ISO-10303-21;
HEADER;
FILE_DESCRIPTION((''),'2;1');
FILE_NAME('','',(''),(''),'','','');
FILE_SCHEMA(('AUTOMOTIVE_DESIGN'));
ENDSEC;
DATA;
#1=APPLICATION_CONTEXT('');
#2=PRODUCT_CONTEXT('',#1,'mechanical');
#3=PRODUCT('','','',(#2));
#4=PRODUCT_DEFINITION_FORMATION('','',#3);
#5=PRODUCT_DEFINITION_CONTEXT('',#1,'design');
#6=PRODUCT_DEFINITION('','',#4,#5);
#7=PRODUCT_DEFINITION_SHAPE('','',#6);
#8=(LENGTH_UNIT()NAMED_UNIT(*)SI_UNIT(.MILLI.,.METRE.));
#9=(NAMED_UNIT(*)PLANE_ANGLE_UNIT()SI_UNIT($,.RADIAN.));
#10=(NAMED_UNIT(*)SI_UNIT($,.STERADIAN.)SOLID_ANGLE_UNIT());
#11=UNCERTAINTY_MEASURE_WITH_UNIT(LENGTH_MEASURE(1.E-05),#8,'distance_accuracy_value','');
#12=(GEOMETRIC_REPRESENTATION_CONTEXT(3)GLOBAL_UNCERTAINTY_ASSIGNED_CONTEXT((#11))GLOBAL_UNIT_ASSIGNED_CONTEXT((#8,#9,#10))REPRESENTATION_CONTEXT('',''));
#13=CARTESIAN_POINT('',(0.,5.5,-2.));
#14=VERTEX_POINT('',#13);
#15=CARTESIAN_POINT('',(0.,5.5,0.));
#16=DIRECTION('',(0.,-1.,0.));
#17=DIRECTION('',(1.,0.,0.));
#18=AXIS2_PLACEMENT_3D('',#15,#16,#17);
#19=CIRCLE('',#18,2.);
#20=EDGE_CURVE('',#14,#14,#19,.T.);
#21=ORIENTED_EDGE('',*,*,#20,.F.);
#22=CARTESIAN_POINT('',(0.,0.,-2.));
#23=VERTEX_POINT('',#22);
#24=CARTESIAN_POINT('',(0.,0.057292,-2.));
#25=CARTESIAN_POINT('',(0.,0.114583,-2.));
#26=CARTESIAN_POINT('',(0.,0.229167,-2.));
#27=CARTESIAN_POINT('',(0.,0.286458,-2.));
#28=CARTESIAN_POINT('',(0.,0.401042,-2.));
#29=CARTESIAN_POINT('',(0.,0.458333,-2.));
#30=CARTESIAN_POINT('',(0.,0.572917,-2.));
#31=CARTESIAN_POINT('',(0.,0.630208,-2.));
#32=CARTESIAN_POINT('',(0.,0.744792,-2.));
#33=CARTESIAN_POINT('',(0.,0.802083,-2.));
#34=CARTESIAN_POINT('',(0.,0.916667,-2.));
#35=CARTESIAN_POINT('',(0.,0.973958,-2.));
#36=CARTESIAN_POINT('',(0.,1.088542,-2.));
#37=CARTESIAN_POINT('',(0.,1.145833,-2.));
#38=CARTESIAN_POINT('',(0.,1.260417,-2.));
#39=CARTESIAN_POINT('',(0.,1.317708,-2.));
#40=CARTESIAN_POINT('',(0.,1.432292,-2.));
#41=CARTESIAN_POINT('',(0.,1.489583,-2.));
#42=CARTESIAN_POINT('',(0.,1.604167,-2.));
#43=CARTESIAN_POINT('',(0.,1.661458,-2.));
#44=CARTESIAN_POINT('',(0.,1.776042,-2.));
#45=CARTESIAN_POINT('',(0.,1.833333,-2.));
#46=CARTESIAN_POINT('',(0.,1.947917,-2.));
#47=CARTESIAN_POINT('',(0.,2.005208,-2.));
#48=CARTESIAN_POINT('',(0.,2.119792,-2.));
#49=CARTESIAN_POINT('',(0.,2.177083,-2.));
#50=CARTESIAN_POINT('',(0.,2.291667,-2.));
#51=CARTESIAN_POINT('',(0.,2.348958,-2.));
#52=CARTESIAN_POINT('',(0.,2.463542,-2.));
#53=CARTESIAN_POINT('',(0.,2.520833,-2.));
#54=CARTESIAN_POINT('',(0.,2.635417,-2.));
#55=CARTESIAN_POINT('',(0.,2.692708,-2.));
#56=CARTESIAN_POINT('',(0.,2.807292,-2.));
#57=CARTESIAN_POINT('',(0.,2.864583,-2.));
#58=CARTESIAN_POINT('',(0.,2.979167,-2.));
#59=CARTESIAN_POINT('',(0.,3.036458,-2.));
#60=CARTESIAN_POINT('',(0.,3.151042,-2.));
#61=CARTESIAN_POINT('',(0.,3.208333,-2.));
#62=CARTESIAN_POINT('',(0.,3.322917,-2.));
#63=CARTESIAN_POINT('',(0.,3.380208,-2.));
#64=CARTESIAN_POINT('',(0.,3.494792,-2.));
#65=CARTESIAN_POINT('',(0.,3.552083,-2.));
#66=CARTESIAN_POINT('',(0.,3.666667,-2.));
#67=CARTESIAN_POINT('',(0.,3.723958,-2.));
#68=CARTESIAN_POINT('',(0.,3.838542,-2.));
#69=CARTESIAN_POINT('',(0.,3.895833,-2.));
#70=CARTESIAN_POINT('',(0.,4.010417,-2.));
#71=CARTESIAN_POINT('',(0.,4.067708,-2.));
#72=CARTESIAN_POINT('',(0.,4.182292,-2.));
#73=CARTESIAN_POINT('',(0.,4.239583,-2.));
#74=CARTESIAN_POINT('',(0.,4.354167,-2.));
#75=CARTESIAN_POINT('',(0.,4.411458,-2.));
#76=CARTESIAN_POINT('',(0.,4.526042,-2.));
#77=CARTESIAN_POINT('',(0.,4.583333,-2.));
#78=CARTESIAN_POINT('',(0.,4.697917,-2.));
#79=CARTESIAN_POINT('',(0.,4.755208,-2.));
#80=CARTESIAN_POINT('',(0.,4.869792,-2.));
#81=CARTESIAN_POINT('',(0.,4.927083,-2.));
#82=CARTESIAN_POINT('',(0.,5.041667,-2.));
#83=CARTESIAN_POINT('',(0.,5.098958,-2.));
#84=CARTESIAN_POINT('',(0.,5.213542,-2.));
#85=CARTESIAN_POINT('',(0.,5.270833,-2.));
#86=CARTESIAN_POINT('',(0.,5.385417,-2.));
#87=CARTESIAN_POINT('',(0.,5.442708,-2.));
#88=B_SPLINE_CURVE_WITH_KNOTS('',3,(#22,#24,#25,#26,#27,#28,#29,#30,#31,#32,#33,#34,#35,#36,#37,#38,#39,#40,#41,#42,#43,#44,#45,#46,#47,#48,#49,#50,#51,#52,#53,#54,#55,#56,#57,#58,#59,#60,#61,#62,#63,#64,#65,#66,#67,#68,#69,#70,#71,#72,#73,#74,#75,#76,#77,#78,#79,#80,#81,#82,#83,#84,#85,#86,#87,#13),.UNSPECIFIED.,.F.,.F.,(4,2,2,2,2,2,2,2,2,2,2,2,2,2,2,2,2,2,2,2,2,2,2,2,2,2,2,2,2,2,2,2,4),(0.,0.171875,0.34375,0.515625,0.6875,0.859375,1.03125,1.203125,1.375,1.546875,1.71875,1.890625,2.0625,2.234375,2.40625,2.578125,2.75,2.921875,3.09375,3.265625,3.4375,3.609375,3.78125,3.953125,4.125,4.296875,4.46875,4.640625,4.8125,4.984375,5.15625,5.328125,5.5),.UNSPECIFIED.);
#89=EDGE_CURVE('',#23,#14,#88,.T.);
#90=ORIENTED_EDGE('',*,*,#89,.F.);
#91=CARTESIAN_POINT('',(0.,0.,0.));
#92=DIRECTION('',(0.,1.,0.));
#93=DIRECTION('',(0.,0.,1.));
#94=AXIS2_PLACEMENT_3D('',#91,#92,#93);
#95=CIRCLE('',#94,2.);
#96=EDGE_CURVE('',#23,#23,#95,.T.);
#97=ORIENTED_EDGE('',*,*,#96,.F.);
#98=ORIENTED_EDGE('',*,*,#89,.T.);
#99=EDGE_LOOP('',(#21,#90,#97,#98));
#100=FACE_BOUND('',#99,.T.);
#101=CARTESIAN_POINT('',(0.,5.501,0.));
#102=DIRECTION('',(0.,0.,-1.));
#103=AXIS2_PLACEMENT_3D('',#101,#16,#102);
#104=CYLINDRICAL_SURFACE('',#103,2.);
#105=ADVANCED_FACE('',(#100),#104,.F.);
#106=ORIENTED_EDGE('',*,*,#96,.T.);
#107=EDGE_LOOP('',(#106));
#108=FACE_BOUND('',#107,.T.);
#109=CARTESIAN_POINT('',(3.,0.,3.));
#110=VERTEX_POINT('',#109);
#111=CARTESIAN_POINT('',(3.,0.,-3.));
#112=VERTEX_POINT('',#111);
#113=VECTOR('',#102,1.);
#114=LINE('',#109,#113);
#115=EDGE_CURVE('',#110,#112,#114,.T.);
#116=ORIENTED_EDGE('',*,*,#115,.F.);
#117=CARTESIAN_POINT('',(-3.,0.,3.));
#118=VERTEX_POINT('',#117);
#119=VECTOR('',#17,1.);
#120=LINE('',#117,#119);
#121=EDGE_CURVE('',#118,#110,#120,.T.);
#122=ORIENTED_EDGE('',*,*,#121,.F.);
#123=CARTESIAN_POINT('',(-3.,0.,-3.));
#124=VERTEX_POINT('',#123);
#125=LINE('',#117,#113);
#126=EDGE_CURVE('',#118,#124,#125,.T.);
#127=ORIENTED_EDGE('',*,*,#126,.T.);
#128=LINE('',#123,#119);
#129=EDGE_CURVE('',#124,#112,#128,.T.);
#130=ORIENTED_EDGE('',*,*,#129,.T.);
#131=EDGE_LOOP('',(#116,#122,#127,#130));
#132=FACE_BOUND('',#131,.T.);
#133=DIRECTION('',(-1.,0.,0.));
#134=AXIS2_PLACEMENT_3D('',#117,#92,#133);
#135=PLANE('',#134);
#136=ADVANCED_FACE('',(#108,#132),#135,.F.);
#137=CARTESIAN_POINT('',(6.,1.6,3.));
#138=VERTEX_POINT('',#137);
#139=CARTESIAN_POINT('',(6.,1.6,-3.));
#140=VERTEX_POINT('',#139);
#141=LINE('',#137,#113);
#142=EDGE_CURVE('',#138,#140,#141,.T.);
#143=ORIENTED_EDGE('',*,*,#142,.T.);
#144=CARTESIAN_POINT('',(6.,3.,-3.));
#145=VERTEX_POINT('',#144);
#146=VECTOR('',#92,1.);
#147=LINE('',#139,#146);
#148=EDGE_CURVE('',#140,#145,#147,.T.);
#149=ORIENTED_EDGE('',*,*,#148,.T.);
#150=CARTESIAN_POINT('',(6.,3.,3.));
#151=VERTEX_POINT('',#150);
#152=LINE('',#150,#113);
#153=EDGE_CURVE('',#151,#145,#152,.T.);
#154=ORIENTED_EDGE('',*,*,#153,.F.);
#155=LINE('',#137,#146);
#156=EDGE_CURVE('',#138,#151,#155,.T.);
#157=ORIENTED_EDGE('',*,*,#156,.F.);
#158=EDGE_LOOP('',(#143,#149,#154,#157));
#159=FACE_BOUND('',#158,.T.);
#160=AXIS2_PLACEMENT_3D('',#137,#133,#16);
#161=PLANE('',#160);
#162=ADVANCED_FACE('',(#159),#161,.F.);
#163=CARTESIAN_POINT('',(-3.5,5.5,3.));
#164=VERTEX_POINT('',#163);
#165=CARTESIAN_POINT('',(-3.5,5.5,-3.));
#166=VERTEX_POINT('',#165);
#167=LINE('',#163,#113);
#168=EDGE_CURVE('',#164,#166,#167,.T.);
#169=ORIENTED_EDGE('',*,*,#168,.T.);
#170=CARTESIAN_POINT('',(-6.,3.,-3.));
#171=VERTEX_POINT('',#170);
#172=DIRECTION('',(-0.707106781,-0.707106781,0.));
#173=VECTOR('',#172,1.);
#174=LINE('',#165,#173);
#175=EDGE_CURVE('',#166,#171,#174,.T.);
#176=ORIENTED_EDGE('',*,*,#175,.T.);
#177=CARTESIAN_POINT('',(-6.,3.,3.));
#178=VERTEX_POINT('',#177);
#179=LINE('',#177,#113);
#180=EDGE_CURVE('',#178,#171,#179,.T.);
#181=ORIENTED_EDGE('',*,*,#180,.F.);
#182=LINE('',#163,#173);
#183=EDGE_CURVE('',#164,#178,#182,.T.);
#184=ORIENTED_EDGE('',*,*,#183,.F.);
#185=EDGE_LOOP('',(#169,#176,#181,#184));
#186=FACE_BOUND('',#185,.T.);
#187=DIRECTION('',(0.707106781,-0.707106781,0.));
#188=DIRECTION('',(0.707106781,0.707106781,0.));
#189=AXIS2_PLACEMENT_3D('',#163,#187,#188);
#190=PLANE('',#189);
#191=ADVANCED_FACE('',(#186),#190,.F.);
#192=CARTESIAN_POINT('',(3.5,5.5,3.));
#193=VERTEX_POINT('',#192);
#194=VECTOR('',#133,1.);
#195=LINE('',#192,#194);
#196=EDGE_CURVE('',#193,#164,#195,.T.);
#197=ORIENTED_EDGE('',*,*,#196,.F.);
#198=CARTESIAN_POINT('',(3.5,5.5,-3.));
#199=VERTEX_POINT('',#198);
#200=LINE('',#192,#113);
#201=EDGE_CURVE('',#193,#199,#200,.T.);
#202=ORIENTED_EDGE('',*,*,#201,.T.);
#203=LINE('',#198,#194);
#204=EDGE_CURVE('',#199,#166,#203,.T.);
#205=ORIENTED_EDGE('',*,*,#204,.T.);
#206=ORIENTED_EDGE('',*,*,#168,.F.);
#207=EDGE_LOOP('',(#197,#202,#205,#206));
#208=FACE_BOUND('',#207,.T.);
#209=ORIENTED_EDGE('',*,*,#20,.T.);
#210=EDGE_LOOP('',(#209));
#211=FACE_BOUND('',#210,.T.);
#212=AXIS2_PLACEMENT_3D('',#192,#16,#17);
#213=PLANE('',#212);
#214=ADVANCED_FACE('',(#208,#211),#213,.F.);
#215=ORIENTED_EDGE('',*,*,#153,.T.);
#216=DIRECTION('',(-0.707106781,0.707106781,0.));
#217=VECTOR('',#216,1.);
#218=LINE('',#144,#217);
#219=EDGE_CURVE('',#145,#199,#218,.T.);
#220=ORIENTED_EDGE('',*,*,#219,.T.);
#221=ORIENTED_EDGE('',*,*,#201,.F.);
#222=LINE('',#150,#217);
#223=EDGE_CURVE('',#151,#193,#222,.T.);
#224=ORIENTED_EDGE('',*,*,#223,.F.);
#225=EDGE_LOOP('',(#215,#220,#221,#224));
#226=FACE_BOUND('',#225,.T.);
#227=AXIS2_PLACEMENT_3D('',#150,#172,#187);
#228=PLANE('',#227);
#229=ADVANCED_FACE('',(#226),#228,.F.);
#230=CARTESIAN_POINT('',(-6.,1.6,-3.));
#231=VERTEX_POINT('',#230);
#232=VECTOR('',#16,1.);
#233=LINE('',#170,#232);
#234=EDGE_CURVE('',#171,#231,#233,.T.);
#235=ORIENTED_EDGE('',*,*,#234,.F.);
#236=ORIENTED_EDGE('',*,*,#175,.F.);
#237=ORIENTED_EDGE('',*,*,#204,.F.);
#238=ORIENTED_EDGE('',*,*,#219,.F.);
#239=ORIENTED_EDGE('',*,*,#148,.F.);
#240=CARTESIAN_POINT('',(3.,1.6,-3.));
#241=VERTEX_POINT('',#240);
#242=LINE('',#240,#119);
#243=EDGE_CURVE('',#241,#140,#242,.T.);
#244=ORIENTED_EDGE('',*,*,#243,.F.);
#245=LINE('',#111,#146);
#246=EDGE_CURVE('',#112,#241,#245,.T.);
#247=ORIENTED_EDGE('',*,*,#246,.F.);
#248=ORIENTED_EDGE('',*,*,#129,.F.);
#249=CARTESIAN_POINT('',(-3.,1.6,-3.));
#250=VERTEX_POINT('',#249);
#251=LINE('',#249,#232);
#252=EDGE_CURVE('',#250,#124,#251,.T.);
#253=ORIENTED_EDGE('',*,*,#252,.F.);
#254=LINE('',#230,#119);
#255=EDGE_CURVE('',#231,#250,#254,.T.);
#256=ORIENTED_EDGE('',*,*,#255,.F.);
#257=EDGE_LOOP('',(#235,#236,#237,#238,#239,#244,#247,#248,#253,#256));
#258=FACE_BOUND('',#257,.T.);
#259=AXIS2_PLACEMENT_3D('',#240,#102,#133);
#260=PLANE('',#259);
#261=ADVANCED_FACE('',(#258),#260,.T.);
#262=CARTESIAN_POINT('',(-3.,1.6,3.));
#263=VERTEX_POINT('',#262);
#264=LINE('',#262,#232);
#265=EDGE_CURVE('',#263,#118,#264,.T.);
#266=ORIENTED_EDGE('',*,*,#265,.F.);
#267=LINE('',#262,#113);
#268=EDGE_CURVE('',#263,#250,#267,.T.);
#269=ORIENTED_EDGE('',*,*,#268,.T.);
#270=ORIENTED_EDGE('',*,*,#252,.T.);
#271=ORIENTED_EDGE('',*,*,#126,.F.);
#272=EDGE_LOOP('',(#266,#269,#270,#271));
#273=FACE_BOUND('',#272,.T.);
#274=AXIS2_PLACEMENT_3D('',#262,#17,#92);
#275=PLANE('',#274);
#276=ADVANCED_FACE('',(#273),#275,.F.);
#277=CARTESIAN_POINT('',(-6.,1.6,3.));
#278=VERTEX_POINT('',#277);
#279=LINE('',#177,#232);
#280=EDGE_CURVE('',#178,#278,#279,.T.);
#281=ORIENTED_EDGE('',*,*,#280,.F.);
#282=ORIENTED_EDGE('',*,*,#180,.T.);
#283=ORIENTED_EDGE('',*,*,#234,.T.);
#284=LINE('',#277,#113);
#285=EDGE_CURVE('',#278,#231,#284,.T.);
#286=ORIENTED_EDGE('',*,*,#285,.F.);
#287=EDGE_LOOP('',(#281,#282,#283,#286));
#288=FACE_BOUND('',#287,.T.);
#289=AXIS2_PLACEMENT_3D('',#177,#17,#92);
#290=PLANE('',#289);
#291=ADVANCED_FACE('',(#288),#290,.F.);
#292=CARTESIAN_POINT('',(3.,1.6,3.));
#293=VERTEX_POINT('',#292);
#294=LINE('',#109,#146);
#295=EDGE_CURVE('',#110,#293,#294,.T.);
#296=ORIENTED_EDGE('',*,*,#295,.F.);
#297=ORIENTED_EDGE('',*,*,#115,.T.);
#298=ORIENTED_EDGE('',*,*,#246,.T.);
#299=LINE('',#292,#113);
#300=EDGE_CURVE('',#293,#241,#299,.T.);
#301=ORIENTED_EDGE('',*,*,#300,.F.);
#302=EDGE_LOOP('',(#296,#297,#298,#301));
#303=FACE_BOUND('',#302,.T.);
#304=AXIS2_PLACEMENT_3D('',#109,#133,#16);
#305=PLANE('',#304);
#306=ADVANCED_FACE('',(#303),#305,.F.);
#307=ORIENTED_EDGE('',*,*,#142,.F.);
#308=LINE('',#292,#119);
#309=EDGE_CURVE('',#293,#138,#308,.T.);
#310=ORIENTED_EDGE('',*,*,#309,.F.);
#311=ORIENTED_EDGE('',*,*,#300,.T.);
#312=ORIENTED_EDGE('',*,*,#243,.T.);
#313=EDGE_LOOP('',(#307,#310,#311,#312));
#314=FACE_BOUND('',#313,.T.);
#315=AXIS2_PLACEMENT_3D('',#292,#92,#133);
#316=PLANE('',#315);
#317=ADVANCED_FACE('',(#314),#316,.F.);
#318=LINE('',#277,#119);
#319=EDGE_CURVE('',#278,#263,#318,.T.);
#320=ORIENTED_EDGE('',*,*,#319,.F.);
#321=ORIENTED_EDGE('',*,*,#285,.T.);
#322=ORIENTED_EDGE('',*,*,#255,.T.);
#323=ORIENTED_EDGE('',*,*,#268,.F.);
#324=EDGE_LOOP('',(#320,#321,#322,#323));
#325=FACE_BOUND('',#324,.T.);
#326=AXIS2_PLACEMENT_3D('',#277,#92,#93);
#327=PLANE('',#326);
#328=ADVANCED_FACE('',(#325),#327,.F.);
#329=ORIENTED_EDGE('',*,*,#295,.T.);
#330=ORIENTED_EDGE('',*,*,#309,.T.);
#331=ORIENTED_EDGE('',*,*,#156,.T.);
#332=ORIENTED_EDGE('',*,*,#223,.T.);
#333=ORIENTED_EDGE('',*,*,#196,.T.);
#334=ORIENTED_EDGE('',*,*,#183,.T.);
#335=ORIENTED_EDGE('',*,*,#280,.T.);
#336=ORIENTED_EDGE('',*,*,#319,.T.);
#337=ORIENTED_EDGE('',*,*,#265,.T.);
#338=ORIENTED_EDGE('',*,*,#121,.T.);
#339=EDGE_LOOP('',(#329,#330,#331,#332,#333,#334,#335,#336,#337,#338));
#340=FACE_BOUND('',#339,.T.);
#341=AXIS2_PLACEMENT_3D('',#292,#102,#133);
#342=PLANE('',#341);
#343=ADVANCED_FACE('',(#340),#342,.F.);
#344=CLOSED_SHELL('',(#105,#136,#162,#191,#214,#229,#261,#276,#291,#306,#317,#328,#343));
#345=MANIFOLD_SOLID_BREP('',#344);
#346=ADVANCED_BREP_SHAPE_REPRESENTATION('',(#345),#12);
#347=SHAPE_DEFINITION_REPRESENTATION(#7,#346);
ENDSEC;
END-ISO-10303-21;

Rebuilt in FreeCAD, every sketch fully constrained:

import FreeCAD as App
import Part
import Sketcher

V = App.Vector
Q = App.Units.Quantity

doc = App.newDocument("Part")
body = doc.addObject("PartDesign::Body", "Body")

# Sketch on XY plane
sketch1 = body.newObject("Sketcher::SketchObject", "Sketch")
sketch1.AttachmentSupport = (doc.getObject("XY_Plane"), [""])
sketch1.MapMode = "FlatFace"
sketch1.addGeometry([
    Part.LineSegment(V(-3, 0, 0), V(3, 0, 0)),  # 0
    Part.LineSegment(V(3, 0, 0), V(3, 1.6, 0)),  # 1
    Part.LineSegment(V(3, 1.6, 0), V(6, 1.6, 0)),  # 2
    Part.LineSegment(V(6, 1.6, 0), V(6, 3, 0)),  # 3
    Part.LineSegment(V(6, 3, 0), V(3.5, 5.5, 0)),  # 4
    Part.LineSegment(V(3.5, 5.5, 0), V(-3.5, 5.5, 0)),  # 5
    Part.LineSegment(V(-3.5, 5.5, 0), V(-6, 3, 0)),  # 6
    Part.LineSegment(V(-6, 3, 0), V(-6, 1.6, 0)),  # 7
    Part.LineSegment(V(-6, 1.6, 0), V(-3, 1.6, 0)),  # 8
    Part.LineSegment(V(-3, 1.6, 0), V(-3, 0, 0)),  # 9
], False)
sketch1.addConstraint([
    Sketcher.Constraint("Coincident", 0, 2, 1, 1),
    Sketcher.Constraint("Coincident", 1, 2, 2, 1),
    Sketcher.Constraint("Coincident", 2, 2, 3, 1),
    Sketcher.Constraint("Coincident", 3, 2, 4, 1),
    Sketcher.Constraint("Coincident", 4, 2, 5, 1),
    Sketcher.Constraint("Coincident", 5, 2, 6, 1),
    Sketcher.Constraint("Coincident", 6, 2, 7, 1),
    Sketcher.Constraint("Coincident", 7, 2, 8, 1),
    Sketcher.Constraint("Coincident", 8, 2, 9, 1),
    Sketcher.Constraint("Coincident", 9, 2, 0, 1),
    Sketcher.Constraint("Horizontal", 0),
    Sketcher.Constraint("Vertical", 1),
    Sketcher.Constraint("Horizontal", 2),
    Sketcher.Constraint("Vertical", 3),
    Sketcher.Constraint("Horizontal", 5),
    Sketcher.Constraint("Vertical", 7),
    Sketcher.Constraint("Horizontal", 8),
    Sketcher.Constraint("Vertical", 9),
    Sketcher.Constraint("Symmetric", 0, 2, 9, 2, -1, 1),
    Sketcher.Constraint("Symmetric", 3, 2, 6, 2, -2),
    Sketcher.Constraint("Perpendicular", 4, 6),
    Sketcher.Constraint("Horizontal", 2, 2, 7, 2),
    Sketcher.Constraint("Equal", 4, 6),
    Sketcher.Constraint("DistanceX", 0, 1, 0, 2, Q("6 mm")),
    Sketcher.Constraint("DistanceX", 2, 1, 2, 2, Q("3 mm")),
    Sketcher.Constraint("DistanceX", 5, 2, 5, 1, Q("7 mm")),
    Sketcher.Constraint("DistanceY", 1, 1, 1, 2, Q("1.6 mm")),
    Sketcher.Constraint("DistanceY", 3, 1, 3, 2, Q("1.4 mm")),
])
pad1 = body.newObject("PartDesign::Pad", "Pad")
pad1.Profile = sketch1
pad1.Length = 6
pad1.Midplane = True

# Sketch on XZ plane
sketch2 = body.newObject("Sketcher::SketchObject", "Sketch001")
sketch2.AttachmentSupport = (doc.getObject("XZ_Plane"), [""])
sketch2.MapMode = "FlatFace"
sketch2.addGeometry(Part.Circle(V(0, 0, 0), V(0, 0, 1), 2), False)
sketch2.addConstraint([
    Sketcher.Constraint("Coincident", 0, 3, -1, 1),
    Sketcher.Constraint("Diameter", 0, Q("4 mm")),
])
pocket1 = body.newObject("PartDesign::Pocket", "Pocket")
pocket1.Profile = sketch2
pocket1.Type = "UpToFirst"

doc.recompute()
